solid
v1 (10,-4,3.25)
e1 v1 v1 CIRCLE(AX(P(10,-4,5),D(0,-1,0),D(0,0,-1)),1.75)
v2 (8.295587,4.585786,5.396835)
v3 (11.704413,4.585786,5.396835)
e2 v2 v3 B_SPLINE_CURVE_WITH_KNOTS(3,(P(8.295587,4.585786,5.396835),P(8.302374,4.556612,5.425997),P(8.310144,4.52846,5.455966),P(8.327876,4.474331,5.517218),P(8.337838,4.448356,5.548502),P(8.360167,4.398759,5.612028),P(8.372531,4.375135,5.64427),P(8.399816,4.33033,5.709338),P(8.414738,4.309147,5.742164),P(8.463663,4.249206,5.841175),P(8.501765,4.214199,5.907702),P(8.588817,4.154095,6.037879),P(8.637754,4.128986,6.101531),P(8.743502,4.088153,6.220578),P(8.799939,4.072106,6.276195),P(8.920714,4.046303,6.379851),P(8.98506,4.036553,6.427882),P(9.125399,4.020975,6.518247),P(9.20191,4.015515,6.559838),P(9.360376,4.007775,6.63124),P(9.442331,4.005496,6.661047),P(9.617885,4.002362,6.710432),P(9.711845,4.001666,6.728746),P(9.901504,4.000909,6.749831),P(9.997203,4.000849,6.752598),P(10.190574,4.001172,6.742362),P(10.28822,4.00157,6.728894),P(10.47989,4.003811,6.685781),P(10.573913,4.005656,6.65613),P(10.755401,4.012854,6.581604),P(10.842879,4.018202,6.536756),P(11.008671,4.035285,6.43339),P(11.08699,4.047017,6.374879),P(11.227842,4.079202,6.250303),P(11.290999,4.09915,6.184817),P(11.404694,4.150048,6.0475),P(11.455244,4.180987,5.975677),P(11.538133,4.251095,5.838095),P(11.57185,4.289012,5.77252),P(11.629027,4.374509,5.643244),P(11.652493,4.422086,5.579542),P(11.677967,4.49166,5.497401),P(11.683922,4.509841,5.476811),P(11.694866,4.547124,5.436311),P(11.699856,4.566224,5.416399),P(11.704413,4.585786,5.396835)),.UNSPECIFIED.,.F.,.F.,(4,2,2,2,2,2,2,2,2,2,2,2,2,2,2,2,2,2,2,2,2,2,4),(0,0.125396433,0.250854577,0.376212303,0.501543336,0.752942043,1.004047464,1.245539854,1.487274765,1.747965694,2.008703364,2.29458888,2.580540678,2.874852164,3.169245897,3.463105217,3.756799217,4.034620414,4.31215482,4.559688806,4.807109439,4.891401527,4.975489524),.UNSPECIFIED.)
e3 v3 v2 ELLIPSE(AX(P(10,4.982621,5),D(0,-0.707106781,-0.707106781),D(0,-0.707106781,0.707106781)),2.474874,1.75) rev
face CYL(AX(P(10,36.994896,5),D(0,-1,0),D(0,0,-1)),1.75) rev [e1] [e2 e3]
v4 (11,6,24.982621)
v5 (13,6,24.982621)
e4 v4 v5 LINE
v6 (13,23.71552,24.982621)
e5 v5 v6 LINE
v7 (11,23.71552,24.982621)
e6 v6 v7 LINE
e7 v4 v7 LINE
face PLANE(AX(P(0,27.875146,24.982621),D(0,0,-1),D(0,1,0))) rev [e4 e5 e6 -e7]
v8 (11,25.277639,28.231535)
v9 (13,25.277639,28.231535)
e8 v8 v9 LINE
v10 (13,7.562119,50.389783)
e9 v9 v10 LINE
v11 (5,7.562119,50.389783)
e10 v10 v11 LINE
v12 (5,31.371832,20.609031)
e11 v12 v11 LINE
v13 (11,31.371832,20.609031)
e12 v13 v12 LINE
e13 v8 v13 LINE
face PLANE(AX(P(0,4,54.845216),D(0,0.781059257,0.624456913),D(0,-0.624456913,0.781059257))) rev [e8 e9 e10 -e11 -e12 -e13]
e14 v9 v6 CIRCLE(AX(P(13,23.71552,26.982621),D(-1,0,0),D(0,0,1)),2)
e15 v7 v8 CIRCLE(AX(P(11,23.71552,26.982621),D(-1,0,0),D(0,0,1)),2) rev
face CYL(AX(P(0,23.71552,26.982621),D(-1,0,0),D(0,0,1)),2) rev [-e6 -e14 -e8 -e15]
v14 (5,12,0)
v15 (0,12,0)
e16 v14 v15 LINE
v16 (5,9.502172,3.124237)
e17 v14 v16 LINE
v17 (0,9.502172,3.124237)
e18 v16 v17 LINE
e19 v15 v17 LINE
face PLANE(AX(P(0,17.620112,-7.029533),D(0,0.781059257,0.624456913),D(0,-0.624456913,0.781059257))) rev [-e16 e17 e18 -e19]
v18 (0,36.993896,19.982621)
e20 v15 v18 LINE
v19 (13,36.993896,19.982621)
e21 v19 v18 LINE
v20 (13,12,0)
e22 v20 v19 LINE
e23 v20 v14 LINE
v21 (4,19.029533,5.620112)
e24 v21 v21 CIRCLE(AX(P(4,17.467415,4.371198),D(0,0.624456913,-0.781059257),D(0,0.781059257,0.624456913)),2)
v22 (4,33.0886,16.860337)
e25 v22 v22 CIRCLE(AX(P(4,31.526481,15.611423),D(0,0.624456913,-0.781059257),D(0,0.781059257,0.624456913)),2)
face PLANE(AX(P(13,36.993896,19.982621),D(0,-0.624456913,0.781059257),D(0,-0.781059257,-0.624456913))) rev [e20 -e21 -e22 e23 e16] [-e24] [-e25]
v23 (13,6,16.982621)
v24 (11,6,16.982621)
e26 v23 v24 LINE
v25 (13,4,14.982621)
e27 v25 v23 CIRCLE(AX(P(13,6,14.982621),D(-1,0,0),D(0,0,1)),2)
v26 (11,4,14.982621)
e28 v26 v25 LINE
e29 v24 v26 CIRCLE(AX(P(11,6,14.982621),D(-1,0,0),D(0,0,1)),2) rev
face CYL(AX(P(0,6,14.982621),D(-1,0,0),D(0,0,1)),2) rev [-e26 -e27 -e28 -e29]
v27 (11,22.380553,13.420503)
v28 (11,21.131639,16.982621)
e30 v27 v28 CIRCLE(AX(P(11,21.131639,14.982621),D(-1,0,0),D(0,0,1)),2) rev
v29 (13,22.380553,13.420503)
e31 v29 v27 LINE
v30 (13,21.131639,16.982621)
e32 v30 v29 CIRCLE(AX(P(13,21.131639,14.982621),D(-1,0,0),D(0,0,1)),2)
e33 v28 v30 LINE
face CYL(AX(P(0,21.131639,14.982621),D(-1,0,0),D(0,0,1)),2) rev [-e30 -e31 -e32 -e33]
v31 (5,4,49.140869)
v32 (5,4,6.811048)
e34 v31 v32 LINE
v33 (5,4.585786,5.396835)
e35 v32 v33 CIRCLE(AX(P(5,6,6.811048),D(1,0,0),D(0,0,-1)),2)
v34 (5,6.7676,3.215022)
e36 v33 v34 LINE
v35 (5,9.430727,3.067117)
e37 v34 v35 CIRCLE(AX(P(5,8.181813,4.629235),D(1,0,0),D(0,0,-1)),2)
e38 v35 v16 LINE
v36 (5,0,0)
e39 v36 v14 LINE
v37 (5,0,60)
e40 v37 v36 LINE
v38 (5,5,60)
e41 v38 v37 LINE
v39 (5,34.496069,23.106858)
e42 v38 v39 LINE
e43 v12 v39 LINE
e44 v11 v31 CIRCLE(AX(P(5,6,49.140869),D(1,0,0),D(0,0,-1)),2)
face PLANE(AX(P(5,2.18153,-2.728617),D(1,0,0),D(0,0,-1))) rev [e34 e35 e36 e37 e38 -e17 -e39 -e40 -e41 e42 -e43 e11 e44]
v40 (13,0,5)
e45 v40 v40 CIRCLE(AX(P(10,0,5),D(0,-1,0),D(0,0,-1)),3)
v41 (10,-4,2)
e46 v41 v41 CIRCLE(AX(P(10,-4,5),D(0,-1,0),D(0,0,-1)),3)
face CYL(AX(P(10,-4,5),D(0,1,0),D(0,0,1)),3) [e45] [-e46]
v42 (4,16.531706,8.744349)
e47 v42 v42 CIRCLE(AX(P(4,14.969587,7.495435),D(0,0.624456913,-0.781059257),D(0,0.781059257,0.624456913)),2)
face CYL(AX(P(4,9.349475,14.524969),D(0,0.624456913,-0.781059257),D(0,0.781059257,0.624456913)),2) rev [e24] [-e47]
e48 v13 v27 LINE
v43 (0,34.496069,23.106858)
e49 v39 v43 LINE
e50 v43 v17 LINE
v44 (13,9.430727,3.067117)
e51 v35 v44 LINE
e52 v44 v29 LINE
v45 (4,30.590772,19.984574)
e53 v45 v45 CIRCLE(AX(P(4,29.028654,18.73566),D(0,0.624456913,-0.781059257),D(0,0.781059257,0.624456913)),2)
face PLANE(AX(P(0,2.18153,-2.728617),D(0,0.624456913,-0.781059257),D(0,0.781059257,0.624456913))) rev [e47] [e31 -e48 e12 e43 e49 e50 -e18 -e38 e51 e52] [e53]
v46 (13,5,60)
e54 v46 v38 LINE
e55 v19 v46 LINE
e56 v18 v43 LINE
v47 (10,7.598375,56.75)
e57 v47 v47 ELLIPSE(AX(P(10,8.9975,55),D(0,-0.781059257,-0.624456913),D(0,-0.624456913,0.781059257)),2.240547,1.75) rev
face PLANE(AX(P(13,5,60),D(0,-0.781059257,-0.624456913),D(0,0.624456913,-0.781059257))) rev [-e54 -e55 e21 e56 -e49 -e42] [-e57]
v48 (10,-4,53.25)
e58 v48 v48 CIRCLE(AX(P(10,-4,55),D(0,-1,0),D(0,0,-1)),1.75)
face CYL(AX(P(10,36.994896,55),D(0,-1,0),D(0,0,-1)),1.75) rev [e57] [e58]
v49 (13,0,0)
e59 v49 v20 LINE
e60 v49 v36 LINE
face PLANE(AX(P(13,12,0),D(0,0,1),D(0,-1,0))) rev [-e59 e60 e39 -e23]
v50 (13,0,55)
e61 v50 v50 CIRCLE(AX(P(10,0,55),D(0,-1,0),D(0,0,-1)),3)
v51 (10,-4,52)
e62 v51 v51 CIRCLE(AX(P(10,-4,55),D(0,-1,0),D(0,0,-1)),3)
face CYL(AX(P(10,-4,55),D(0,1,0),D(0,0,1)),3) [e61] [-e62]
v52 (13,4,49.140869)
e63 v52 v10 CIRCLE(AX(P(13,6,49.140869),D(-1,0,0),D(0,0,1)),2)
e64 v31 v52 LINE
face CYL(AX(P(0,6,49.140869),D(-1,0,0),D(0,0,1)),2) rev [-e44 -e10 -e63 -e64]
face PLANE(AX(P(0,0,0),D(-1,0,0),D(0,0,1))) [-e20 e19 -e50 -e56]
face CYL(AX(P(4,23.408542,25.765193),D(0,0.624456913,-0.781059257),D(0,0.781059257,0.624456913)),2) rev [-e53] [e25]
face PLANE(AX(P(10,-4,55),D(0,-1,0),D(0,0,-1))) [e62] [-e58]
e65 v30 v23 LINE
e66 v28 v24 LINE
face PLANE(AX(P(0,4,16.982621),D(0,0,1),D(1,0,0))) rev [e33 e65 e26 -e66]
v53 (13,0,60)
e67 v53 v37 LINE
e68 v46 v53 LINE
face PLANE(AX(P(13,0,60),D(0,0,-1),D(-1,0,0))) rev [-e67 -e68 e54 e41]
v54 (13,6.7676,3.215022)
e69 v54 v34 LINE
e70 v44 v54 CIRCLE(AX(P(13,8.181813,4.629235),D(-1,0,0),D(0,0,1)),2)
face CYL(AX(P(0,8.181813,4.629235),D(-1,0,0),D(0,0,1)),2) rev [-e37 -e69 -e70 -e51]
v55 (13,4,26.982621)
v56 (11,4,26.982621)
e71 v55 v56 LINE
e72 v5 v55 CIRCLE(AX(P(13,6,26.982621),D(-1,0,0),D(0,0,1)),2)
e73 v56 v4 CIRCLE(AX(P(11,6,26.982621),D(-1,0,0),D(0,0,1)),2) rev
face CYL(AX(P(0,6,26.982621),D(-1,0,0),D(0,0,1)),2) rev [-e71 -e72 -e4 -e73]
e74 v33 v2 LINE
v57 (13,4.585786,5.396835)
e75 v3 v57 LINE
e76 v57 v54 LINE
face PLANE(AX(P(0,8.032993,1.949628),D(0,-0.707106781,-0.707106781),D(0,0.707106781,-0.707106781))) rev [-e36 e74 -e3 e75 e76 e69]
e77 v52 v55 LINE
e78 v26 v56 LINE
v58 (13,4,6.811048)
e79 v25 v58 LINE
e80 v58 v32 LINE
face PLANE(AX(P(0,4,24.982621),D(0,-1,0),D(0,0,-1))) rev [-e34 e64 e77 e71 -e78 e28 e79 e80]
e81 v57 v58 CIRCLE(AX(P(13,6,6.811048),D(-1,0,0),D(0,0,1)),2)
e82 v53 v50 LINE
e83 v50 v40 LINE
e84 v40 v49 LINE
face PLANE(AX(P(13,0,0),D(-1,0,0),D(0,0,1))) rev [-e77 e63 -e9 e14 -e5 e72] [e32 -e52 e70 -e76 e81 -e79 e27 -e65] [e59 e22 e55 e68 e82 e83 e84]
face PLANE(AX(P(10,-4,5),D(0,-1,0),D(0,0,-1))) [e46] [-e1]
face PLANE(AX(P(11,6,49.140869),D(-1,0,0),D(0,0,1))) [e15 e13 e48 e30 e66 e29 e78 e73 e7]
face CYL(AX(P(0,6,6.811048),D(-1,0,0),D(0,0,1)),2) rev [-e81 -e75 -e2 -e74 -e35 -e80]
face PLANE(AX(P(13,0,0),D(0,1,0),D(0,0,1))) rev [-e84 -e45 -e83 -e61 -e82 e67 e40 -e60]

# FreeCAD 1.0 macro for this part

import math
import FreeCAD as App
import Part
import Sketcher

V = App.Vector
Q = App.Units.Quantity


def edges_at(feature, points):
    """Names of the edges that pass closest to the given points."""
    edges = feature.Shape.Edges
    near = lambda p: min(range(len(edges)), key=lambda i: edges[i].distToShape(Part.Vertex(*p))[0])
    return sorted({f"Edge{near(p) + 1}" for p in points})


def add_polygon(sketch, points):
    """Adds a closed chain of lines whose ends are joined by coincident constraints."""
    first, n = sketch.GeometryCount, len(points)
    for a, b in zip(points, points[1:] + points[:1]):
        sketch.addGeometry(Part.LineSegment(App.Vector(*a, 0), App.Vector(*b, 0)), False)
    for i in range(n):
        sketch.addConstraint(Sketcher.Constraint("Coincident", first + i, 2, first + (i + 1) % n, 1))

doc = App.newDocument("Part")
body = doc.addObject("PartDesign::Body", "Body")

# Sketch on YZ plane
sketch1 = doc.addObject("Sketcher::SketchObject", "Sketch")
body.addObject(sketch1)
sketch1.AttachmentSupport = (doc.YZ_Plane, [""])
sketch1.MapMode = "FlatFace"
add_polygon(sketch1, [(0, 60), (0, 0), (12, 0), (37, 20), (5, 60)])  # lines 0-4
sketch1.addConstraint([
    Sketcher.Constraint("Vertical", 0),
    Sketcher.Constraint("Horizontal", 1),
    Sketcher.Constraint("Horizontal", 4),
    Sketcher.Constraint("Coincident", 0, 2, -1, 1),
    Sketcher.Constraint("Perpendicular", 2, 3),
    Sketcher.Constraint("DistanceX", 1, 1, 1, 2, Q("12 mm")),
    Sketcher.Constraint("DistanceX", 4, 2, 4, 1, Q("5 mm")),
    Sketcher.Constraint("DistanceY", 0, 2, 0, 1, Q("60 mm")),
    Sketcher.Constraint("Distance", 2, Q("32 mm")),
])
pad1 = doc.addObject("PartDesign::Pad", "Pad")
body.addObject(pad1)
pad1.Profile = sketch1
pad1.Length = 13

# Sketch on an angled plane
sketch2 = doc.addObject("Sketcher::SketchObject", "Sketch001")
body.addObject(sketch2)
sketch2.Placement = App.Placement(V(0, 32.314539, 25.835475), App.Rotation(V(1, 0, 0), V(0, 0.624456913, -0.781059257), V(0, 0.781059257, 0.624456913), "ZXY"))
add_polygon(sketch2, [(5, 3), (0, 3), (0, -49), (5, -49)])  # lines 0-3
sketch2.addConstraint([
    Sketcher.Constraint("Horizontal", 0),
    Sketcher.Constraint("Vertical", 1),
    Sketcher.Constraint("Horizontal", 2),
    Sketcher.Constraint("Vertical", 3),
    Sketcher.Constraint("PointOnObject", 0, 2, -2),
    Sketcher.Constraint("DistanceX", 0, 2, 0, 1, Q("5 mm")),
    Sketcher.Constraint("DistanceY", 1, 2, 1, 1, Q("52.538669 mm")),
    Sketcher.Constraint("DistanceY", -1, 1, 0, 2, Q("3.493483 mm")),
])
pocket1 = doc.addObject("PartDesign::Pocket", "Pocket")
body.addObject(pocket1)
pocket1.Profile = sketch2
pocket1.Type = "ThroughAll"

# Sketch on YZ plane
sketch3 = doc.addObject("Sketcher::SketchObject", "Sketch002")
body.addObject(sketch3)
sketch3.AttachmentSupport = (doc.YZ_Plane, [""])
sketch3.MapMode = "FlatFace"
sketch3.AttachmentOffset = App.Placement(V(0, 0, 13), App.Rotation())
add_polygon(sketch3, [(4, 25), (28, 25), (4, 55)])  # lines 0-2
add_polygon(sketch3, [(8, 2), (27, 17), (4, 17), (4, 6)])  # lines 3-6
sketch3.addConstraint([
    Sketcher.Constraint("Horizontal", 0),
    Sketcher.Constraint("Vertical", 2),
    Sketcher.Constraint("Horizontal", 4),
    Sketcher.Constraint("Vertical", 5),
    Sketcher.Constraint("Perpendicular", 1, 3),
    Sketcher.Constraint("Vertical", 2, 2, 4, 2),
    Sketcher.Constraint("DistanceY", 5, 2, 5, 1, Q("11 mm")),
    Sketcher.Constraint("Angle", 6, Q("-45 deg")),
    Sketcher.Constraint("DistanceX", -1, 1, 1, 2, Q("4 mm")),
    Sketcher.Constraint("DistanceY", 3, 2, 0, 2, Q("8 mm")),
    Sketcher.Constraint("DistanceX", 0, 1, 0, 2, Q("23.875146 mm")),
    Sketcher.Constraint("DistanceX", 4, 2, 4, 1, Q("22.835985 mm")),
    Sketcher.Constraint("DistanceY", 2, 2, 2, 1, Q("29.862594 mm")),
    Sketcher.Constraint("DistanceY", -1, 1, 0, 2, Q("24.982621 mm")),
])
pocket2 = doc.addObject("PartDesign::Pocket", "Pocket001")
body.addObject(pocket2)
pocket2.Profile = sketch3
pocket2.Type = "ThroughAll"
doc.recompute()

fillet = doc.addObject("PartDesign::Fillet", "Fillet")
body.addObject(fillet)
fillet.Base = (pocket2, edges_at(pocket2, [
    (9, 4, 54.845),
    (9, 27.875, 24.983),
    (9, 4, 24.983),
    (9, 26.836, 16.983),
    (9, 4, 5.983),
    (9, 4, 16.983),
    (9, 8.033, 1.95),
]))
fillet.Radius = 2

# Sketch on an angled plane
sketch4 = doc.addObject("Sketcher::SketchObject", "Sketch003")
body.addObject(sketch4)
sketch4.Placement = App.Placement(V(0, 2.18153, -2.728617), App.Rotation(V(1, 0, 0), V(0, 0.781059257, 0.624456913), V(0, -0.624456913, 0.781059257), "ZXY"))
add_polygon(sketch4, [(5, 9), (0, 9), (0, 4), (5, 4)])  # lines 0-3
sketch4.addConstraint([
    Sketcher.Constraint("Horizontal", 0),
    Sketcher.Constraint("Vertical", 1),
    Sketcher.Constraint("Horizontal", 2),
    Sketcher.Constraint("Vertical", 3),
    Sketcher.Constraint("PointOnObject", 0, 2, -2),
    Sketcher.Constraint("DistanceX", 0, 2, 0, 1, Q("5 mm")),
    Sketcher.Constraint("DistanceY", 1, 2, 1, 1, Q("5.003127 mm")),
    Sketcher.Constraint("DistanceY", -1, 1, 0, 2, Q("9.372711 mm")),
])
pocket3 = doc.addObject("PartDesign::Pocket", "Pocket002")
body.addObject(pocket3)
pocket3.Profile = sketch4
pocket3.Length = 13

# Sketch on an angled plane
sketch5 = doc.addObject("Sketcher::SketchObject", "Sketch004")
body.addObject(sketch5)
sketch5.Placement = App.Placement(V(0, 4.679357, -5.852854), App.Rotation(V(-1, 0, 0), V(0, 0.781059257, 0.624456913), V(0, 0.624456913, -0.781059257), "ZXY"))
sketch5.addGeometry([
    Part.Circle(V(-4, 34.4, 0), V(0, 0, 1), 2),
    Part.Circle(V(-4, 16.4, 0), V(0, 0, 1), 2),
], False)
sketch5.addConstraint([
    Sketcher.Constraint("Equal", 0, 1),
    Sketcher.Constraint("Vertical", 0, 3, 1, 3),
    Sketcher.Constraint("Diameter", 0, Q("4 mm")),
    Sketcher.Constraint("DistanceX", 0, 3, -1, 1, Q("4 mm")),
    Sketcher.Constraint("DistanceY", 1, 3, 0, 3, Q("18 mm")),
    Sketcher.Constraint("DistanceY", -1, 1, 0, 3, Q("34.372711 mm")),
])
pocket4 = doc.addObject("PartDesign::Pocket", "Pocket003")
body.addObject(pocket4)
pocket4.Profile = sketch5
pocket4.Length = 13

# Sketch on YZ plane
sketch6 = doc.addObject("Sketcher::SketchObject", "Sketch005")
body.addObject(sketch6)
sketch6.AttachmentSupport = (doc.YZ_Plane, [""])
sketch6.MapMode = "FlatFace"
sketch6.AttachmentOffset = App.Placement(V(0, 0, 5), App.Rotation())
sketch6.addGeometry([
    Part.LineSegment(V(31.4, 20.6, 0), V(9.4, 3.1, 0)),  # 0
    Part.ArcOfCircle(Part.Circle(V(8.2, 4.6, 0), V(0, 0, 1), 2), math.radians(-135), math.radians(-51)),  # 1
    Part.LineSegment(V(6.8, 3.2, 0), V(4.6, 5.4, 0)),  # 2
    Part.ArcOfCircle(Part.Circle(V(6, 6.8, 0), V(0, 0, 1), 2), math.radians(180), math.radians(225)),  # 3
    Part.LineSegment(V(4, 6.8, 0), V(4, 49.1, 0)),  # 4
    Part.ArcOfCircle(Part.Circle(V(6, 49.1, 0), V(0, 0, 1), 2), math.radians(39), math.radians(180)),  # 5
    Part.LineSegment(V(7.6, 50.4, 0), V(31.4, 20.6, 0)),  # 6
], False)
sketch6.addConstraint([
    Sketcher.Constraint("Tangent", 0, 2, 1, 2),
    Sketcher.Constraint("Tangent", 1, 1, 2, 1),
    Sketcher.Constraint("Tangent", 2, 2, 3, 2),
    Sketcher.Constraint("Tangent", 3, 1, 4, 1),
    Sketcher.Constraint("Tangent", 4, 2, 5, 2),
    Sketcher.Constraint("Tangent", 5, 1, 6, 1),
    Sketcher.Constraint("Coincident", 6, 2, 0, 1),
    Sketcher.Constraint("Vertical", 4),
    Sketcher.Constraint("Equal", 1, 3),
    Sketcher.Constraint("Equal", 3, 5),
    Sketcher.Constraint("Perpendicular", 0, 6),
    Sketcher.Constraint("Radius", 1, Q("2 mm")),
    Sketcher.Constraint("Angle", 2, Q("135 deg")),
    Sketcher.Constraint("DistanceX", -1, 1, 3, 3, Q("6 mm")),
    Sketcher.Constraint("DistanceY", 4, 1, 4, 2, Q("42.329821 mm")),
    Sketcher.Constraint("DistanceX", -1, 1, 1, 1, Q("6.7676 mm")),
    Sketcher.Constraint("DistanceY", -1, 1, 3, 3, Q("6.811048 mm")),
    Sketcher.Constraint("DistanceX", -1, 1, 5, 1, Q("7.562119 mm")),
])
pocket5 = doc.addObject("PartDesign::Pocket", "Pocket004")
body.addObject(pocket5)
pocket5.Profile = sketch6
pocket5.Length = 6
pocket5.Reversed = True

# Sketch on XZ plane
sketch7 = doc.addObject("Sketcher::SketchObject", "Sketch006")
body.addObject(sketch7)
sketch7.AttachmentSupport = (doc.XZ_Plane, [""])
sketch7.MapMode = "FlatFace"
sketch7.addGeometry([
    Part.Circle(V(10, 55, 0), V(0, 0, 1), 3),
    Part.Circle(V(10, 5, 0), V(0, 0, 1), 3),
], False)
sketch7.addConstraint([
    Sketcher.Constraint("Equal", 0, 1),
    Sketcher.Constraint("Vertical", 0, 3, 1, 3),
    Sketcher.Constraint("Diameter", 0, Q("6 mm")),
    Sketcher.Constraint("DistanceX", -1, 1, 0, 3, Q("10 mm")),
    Sketcher.Constraint("DistanceY", -1, 1, 0, 3, Q("55 mm")),
    Sketcher.Constraint("DistanceY", -1, 1, 1, 3, Q("5 mm")),
])
pad2 = doc.addObject("PartDesign::Pad", "Pad001")
body.addObject(pad2)
pad2.Profile = sketch7
pad2.Length = 4

# Sketch on XZ plane
sketch8 = doc.addObject("Sketcher::SketchObject", "Sketch007")
body.addObject(sketch8)
sketch8.AttachmentSupport = (doc.XZ_Plane, [""])
sketch8.MapMode = "FlatFace"
sketch8.AttachmentOffset = App.Placement(V(0, 0, 4), App.Rotation())
sketch8.addGeometry(Part.Circle(V(10, 55, 0), V(0, 0, 1), 1.8), False)
sketch8.addConstraint([
    Sketcher.Constraint("Diameter", 0, Q("3.5 mm")),
    Sketcher.Constraint("DistanceX", -1, 1, 0, 3, Q("10 mm")),
    Sketcher.Constraint("DistanceY", -1, 1, 0, 3, Q("55 mm")),
])
pocket6 = doc.addObject("PartDesign::Pocket", "Pocket005")
body.addObject(pocket6)
pocket6.Profile = sketch8
pocket6.Type = "UpToFirst"

# Sketch on XZ plane
sketch9 = doc.addObject("Sketcher::SketchObject", "Sketch008")
body.addObject(sketch9)
sketch9.AttachmentSupport = (doc.XZ_Plane, [""])
sketch9.MapMode = "FlatFace"
sketch9.AttachmentOffset = App.Placement(V(0, 0, 4), App.Rotation())
sketch9.addGeometry(Part.Circle(V(10, 5, 0), V(0, 0, 1), 1.8), False)
sketch9.addConstraint([
    Sketcher.Constraint("Diameter", 0, Q("3.5 mm")),
    Sketcher.Constraint("DistanceX", -1, 1, 0, 3, Q("10 mm")),
    Sketcher.Constraint("DistanceY", -1, 1, 0, 3, Q("5 mm")),
])
pocket7 = doc.addObject("PartDesign::Pocket", "Pocket006")
body.addObject(pocket7)
pocket7.Profile = sketch9
pocket7.Length = 10.732621

doc.recompute()
